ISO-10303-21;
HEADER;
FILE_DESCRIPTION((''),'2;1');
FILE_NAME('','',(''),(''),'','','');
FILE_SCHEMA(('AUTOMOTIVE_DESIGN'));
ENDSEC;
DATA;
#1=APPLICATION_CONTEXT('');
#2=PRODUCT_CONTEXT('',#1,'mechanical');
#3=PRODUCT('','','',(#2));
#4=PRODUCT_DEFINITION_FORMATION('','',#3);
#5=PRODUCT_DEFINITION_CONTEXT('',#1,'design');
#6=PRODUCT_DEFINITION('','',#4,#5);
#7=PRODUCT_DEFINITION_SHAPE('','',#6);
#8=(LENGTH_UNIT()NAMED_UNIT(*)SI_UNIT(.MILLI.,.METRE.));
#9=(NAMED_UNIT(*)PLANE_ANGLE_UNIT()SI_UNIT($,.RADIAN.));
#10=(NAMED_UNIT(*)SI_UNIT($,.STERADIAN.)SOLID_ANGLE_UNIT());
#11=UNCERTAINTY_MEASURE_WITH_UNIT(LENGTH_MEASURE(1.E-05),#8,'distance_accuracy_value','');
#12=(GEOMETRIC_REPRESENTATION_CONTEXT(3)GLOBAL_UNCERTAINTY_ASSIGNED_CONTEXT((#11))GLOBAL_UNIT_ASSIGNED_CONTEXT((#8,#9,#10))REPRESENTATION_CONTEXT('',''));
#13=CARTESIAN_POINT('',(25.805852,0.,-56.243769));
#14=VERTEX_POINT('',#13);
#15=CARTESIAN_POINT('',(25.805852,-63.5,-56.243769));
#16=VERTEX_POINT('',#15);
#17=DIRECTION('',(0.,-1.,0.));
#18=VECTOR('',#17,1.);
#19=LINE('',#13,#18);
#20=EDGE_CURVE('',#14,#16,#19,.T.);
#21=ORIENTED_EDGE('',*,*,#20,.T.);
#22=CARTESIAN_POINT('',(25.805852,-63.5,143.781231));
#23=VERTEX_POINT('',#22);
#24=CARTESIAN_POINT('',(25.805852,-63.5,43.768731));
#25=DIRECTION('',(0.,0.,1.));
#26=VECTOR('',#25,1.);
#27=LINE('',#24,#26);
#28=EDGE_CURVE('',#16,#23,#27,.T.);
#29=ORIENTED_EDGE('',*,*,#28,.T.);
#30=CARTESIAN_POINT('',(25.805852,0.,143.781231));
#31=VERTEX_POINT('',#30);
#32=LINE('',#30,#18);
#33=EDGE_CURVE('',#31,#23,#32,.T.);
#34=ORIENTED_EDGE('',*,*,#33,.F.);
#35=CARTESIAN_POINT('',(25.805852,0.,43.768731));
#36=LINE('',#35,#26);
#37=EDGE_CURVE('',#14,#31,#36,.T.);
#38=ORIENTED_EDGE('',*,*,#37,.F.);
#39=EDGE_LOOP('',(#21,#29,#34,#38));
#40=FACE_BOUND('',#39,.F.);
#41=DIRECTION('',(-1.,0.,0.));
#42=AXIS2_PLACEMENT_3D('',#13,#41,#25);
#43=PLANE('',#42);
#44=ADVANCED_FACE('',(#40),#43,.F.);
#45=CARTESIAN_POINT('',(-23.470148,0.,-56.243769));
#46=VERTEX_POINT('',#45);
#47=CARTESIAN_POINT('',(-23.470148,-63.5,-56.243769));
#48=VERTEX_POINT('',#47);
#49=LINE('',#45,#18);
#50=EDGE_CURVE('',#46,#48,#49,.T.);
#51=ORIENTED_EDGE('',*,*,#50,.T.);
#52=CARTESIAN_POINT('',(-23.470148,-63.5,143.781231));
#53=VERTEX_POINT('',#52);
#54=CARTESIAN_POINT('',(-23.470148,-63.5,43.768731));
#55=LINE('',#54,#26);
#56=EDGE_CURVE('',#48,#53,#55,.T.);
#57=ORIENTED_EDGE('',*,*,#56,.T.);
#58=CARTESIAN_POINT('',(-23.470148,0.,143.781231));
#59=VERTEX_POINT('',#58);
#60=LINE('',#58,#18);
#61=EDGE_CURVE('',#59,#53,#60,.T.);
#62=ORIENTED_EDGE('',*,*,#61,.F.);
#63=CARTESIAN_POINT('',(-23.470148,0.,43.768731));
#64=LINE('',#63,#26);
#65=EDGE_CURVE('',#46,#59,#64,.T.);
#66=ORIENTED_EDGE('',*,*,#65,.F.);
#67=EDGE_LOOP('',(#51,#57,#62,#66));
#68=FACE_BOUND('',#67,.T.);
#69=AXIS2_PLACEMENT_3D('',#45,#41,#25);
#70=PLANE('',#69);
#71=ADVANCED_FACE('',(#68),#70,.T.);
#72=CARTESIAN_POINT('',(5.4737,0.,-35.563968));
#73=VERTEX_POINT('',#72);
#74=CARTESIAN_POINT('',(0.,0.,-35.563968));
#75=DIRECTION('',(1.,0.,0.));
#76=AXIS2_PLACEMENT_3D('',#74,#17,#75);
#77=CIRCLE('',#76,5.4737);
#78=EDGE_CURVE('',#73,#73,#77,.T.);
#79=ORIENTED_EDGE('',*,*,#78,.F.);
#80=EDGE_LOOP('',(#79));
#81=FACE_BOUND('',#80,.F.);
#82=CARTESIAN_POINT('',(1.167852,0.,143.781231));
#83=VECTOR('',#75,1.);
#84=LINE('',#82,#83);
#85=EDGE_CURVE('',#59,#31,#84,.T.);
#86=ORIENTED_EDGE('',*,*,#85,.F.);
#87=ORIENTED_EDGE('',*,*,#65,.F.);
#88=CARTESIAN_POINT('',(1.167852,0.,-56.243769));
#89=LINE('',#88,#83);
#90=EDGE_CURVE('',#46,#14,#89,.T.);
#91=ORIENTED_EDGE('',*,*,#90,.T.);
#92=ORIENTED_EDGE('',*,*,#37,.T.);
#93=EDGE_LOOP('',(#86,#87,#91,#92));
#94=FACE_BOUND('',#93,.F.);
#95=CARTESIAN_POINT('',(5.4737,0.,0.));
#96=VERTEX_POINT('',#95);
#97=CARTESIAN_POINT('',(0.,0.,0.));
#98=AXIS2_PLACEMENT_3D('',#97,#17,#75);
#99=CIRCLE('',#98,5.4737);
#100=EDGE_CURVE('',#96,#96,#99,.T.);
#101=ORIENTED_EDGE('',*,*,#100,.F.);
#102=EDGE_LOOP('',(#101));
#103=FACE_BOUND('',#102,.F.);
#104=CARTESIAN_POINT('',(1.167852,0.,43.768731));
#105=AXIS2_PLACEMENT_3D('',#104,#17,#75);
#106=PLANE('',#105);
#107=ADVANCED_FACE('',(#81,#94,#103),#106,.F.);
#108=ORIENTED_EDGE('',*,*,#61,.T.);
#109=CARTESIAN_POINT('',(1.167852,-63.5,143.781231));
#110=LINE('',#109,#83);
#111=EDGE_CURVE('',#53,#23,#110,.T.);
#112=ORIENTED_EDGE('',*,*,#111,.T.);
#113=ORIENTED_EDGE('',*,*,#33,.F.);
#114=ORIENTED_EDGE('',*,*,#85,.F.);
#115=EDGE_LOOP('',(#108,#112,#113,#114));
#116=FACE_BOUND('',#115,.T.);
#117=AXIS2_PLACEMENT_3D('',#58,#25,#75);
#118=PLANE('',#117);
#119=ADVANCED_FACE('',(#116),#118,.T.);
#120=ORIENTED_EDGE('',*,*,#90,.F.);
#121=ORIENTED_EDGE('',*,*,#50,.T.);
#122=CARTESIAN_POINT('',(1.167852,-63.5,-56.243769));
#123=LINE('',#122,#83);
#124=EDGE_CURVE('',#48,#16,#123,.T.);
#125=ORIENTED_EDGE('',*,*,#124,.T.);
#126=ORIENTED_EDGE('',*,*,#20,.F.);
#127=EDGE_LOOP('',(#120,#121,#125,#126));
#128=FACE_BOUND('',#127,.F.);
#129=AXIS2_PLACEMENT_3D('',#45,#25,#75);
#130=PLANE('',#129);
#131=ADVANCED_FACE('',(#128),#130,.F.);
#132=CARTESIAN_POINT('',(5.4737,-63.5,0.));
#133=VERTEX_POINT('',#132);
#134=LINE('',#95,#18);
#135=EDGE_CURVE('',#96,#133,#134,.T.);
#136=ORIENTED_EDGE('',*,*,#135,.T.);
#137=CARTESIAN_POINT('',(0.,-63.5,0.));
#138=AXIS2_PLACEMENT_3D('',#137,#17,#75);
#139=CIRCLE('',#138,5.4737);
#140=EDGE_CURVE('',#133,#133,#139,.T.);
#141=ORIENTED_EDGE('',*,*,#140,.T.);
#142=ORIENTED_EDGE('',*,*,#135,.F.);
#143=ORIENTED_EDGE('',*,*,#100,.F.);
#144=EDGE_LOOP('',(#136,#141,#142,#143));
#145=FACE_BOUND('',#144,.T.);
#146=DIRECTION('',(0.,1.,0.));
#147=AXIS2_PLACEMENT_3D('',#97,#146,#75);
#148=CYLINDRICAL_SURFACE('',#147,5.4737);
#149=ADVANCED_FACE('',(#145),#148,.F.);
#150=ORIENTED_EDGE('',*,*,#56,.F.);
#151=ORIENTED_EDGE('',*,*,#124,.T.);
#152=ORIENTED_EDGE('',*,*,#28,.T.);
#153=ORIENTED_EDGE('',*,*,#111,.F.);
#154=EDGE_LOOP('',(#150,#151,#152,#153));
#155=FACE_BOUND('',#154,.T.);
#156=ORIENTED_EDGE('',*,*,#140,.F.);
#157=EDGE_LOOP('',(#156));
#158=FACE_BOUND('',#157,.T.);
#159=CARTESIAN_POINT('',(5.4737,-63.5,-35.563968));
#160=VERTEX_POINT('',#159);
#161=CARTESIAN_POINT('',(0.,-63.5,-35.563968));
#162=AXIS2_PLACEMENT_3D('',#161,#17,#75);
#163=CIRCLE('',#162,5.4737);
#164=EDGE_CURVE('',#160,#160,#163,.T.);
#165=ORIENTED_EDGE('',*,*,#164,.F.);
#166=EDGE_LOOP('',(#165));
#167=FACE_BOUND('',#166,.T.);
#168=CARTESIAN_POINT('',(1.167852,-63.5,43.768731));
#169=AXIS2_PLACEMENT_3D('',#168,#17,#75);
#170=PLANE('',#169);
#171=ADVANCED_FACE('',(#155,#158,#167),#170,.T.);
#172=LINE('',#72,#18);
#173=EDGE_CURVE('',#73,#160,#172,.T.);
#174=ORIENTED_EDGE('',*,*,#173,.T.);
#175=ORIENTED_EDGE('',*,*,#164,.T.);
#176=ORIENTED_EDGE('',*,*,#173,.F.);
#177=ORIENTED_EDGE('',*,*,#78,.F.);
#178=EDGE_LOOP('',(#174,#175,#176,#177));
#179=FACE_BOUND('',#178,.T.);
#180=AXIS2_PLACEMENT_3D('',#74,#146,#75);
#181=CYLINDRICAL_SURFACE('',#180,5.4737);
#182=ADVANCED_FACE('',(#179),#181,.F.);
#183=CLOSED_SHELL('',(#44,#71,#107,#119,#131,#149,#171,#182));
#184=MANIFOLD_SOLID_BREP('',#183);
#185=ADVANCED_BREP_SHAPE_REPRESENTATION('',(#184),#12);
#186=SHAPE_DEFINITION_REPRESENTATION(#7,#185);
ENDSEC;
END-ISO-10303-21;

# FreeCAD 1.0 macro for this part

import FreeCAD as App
import Part
import Sketcher
Q = App.Units.Quantity


def add_polygon(sketch, points):
    """Adds a closed chain of lines whose ends are joined by coincident constraints."""
    first, n = sketch.GeometryCount, len(points)
    for a, b in zip(points, points[1:] + points[:1]):
        sketch.addGeometry(Part.LineSegment(App.Vector(*a, 0), App.Vector(*b, 0)), False)
    for i in range(n):
        sketch.addConstraint(Sketcher.Constraint("Coincident", first + i, 2, first + (i + 1) % n, 1))

doc = App.newDocument("Part")
body = doc.addObject("PartDesign::Body", "Body")

# Sketch on XZ plane
sketch1 = body.newObject("Sketcher::SketchObject", "Sketch")
sketch1.AttachmentSupport = (doc.getObject("XZ_Plane"), [""])
sketch1.MapMode = "FlatFace"
add_polygon(sketch1, [(-23, 144), (-23, -56), (26, -56), (26, 144)])  # lines 0-3
sketch1.addGeometry(Part.Circle(App.Vector(0, -36, 0), App.Vector(0, 0, 1), 5), False)  # 4
sketch1.addGeometry(Part.Circle(App.Vector(0, 0, 0), App.Vector(0, 0, 1), 5), False)  # 5
sketch1.addConstraint([
    Sketcher.Constraint("Vertical", 0),
    Sketcher.Constraint("Horizontal", 1),
    Sketcher.Constraint("Vertical", 2),
    Sketcher.Constraint("Horizontal", 3),
    Sketcher.Constraint("Coincident", 5, 3, -1, 1),
    Sketcher.Constraint("Equal", 4, 5),
    Sketcher.Constraint("PointOnObject", 4, 3, -2),
    Sketcher.Constraint("Diameter", 4, Q("0.431 in")),
    Sketcher.Constraint("DistanceX", 1, 1, 1, 2, Q("1.94 in")),
    Sketcher.Constraint("DistanceY", 0, 2, 0, 1, Q("7.875 in")),
    Sketcher.Constraint("DistanceY", 0, 2, 4, 3, 20.679801),
    Sketcher.Constraint("DistanceY", 4, 3, -1, 1, 35.563968),
    Sketcher.Constraint("DistanceX", 0, 2, -1, 1, 23.470148),
])
pad1 = body.newObject("PartDesign::Pad", "Pad")
pad1.Profile = sketch1
pad1.Length = Q("2.5 in")

doc.recompute()
